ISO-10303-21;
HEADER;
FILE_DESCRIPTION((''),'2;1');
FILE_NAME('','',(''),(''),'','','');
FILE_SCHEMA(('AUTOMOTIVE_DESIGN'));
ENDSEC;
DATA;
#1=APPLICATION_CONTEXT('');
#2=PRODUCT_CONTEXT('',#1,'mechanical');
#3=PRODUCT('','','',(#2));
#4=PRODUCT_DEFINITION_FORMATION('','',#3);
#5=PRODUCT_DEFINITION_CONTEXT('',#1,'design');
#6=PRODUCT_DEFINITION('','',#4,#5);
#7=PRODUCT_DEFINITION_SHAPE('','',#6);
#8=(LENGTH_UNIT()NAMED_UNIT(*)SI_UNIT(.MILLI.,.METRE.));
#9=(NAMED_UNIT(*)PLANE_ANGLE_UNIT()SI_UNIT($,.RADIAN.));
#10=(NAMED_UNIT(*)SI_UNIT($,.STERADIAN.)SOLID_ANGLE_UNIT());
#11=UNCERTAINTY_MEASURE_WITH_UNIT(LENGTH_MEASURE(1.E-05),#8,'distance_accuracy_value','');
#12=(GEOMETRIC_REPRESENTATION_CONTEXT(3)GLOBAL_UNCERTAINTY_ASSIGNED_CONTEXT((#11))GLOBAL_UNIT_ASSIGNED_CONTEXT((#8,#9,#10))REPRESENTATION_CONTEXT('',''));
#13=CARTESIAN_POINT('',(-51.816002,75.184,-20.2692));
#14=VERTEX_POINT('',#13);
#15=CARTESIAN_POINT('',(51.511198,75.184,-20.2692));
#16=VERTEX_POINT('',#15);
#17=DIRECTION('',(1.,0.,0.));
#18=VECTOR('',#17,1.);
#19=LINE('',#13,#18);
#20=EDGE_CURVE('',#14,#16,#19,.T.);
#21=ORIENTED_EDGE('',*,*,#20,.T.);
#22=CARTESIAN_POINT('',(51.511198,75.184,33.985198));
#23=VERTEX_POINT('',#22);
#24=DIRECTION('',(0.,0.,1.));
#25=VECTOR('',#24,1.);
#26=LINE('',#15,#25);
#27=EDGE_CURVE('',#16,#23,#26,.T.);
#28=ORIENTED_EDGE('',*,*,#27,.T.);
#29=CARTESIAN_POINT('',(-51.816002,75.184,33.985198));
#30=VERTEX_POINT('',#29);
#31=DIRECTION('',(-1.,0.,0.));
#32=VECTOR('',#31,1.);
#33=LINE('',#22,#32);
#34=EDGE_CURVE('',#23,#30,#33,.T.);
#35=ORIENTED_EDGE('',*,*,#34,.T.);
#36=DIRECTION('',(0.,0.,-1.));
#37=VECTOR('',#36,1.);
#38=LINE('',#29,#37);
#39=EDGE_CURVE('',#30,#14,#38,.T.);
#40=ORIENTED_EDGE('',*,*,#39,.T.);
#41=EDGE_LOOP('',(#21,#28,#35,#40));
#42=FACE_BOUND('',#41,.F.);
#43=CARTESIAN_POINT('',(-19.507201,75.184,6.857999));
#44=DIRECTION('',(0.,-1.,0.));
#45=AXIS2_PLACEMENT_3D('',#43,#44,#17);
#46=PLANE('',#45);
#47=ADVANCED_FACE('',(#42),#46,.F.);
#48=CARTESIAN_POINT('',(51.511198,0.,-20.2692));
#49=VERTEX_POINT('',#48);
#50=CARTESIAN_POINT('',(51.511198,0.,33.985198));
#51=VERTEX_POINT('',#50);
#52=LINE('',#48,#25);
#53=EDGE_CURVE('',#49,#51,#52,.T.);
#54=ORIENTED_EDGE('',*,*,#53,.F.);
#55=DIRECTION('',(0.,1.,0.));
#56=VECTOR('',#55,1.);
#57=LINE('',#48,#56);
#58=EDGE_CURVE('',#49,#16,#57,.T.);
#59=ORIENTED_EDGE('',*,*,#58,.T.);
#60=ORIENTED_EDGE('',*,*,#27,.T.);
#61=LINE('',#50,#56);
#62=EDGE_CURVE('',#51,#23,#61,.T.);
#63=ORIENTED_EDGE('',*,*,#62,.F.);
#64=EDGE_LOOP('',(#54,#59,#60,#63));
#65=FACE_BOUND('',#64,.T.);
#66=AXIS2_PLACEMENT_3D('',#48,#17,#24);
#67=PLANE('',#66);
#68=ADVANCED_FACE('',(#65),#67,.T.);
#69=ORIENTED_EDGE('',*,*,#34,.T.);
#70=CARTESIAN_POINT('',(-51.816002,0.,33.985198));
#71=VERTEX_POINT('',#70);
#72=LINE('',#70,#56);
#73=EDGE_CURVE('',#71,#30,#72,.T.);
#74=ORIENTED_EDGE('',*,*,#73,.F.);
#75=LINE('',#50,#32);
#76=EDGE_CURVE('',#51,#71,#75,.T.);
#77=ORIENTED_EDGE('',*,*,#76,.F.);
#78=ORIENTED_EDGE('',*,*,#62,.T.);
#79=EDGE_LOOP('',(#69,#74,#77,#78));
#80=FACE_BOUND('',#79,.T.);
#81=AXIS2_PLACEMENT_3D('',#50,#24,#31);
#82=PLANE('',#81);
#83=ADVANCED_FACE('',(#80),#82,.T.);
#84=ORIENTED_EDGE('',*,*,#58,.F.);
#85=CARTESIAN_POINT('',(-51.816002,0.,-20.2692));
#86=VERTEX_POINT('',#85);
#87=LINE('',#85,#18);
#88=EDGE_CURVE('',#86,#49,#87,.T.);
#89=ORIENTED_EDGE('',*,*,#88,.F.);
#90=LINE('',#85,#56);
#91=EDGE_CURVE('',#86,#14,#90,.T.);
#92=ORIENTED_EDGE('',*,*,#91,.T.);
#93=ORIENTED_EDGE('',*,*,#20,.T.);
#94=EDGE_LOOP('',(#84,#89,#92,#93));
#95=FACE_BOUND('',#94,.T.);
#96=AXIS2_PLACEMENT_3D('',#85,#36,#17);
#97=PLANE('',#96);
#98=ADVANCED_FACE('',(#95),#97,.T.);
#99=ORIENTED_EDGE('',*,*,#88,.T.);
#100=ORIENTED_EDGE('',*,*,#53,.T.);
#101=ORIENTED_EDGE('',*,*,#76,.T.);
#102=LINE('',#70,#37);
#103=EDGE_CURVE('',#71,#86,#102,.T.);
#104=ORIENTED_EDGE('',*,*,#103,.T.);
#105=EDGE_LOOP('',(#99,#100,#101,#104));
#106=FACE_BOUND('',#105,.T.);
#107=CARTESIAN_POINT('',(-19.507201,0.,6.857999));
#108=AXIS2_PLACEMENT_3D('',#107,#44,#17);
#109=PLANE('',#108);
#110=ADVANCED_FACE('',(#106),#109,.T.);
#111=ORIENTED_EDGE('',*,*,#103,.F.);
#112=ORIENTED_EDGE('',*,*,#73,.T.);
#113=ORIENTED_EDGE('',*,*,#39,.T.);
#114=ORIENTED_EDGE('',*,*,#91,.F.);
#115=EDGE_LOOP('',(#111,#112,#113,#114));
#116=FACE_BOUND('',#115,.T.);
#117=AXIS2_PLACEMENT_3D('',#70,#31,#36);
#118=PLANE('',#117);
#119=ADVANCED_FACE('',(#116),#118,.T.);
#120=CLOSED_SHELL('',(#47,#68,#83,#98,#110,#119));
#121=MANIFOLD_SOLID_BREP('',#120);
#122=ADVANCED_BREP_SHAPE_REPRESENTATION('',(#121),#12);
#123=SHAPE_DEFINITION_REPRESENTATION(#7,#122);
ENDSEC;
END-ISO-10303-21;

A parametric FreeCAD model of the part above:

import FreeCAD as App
import Part
import Sketcher
Q = App.Units.Quantity


def add_polygon(sketch, points):
    """Adds a closed chain of lines whose ends are joined by coincident constraints."""
    first, n = sketch.GeometryCount, len(points)
    for a, b in zip(points, points[1:] + points[:1]):
        sketch.addGeometry(Part.LineSegment(App.Vector(*a, 0), App.Vector(*b, 0)), False)
    for i in range(n):
        sketch.addConstraint(Sketcher.Constraint("Coincident", first + i, 2, first + (i + 1) % n, 1))

doc = App.newDocument("Part")
body = doc.addObject("PartDesign::Body", "Body")

# Sketch on XZ plane
sketch1 = body.newObject("Sketcher::SketchObject", "Sketch")
sketch1.AttachmentSupport = (doc.getObject("XZ_Plane"), [""])
sketch1.MapMode = "FlatFace"
add_polygon(sketch1, [(-52, 34), (-52, -20), (52, -20), (52, 34)])  # lines 0-3
sketch1.addConstraint([
    Sketcher.Constraint("Vertical", 0),
    Sketcher.Constraint("Horizontal", 1),
    Sketcher.Constraint("Vertical", 2),
    Sketcher.Constraint("Horizontal", 3),
    Sketcher.Constraint("DistanceX", 1, 1, 1, 2, Q("4.068 in")),
    Sketcher.Constraint("DistanceY", 0, 2, 0, 1, Q("2.1359999 in")),
    Sketcher.Constraint("DistanceX", 0, 2, -1, 1, Q("2.0400001 in")),
    Sketcher.Constraint("DistanceY", 0, 2, -1, 1, Q("0.798 in")),
])
pad1 = body.newObject("PartDesign::Pad", "Pad")
pad1.Profile = sketch1
pad1.Length = Q("2.96 in")
pad1.Reversed = True

doc.recompute()
